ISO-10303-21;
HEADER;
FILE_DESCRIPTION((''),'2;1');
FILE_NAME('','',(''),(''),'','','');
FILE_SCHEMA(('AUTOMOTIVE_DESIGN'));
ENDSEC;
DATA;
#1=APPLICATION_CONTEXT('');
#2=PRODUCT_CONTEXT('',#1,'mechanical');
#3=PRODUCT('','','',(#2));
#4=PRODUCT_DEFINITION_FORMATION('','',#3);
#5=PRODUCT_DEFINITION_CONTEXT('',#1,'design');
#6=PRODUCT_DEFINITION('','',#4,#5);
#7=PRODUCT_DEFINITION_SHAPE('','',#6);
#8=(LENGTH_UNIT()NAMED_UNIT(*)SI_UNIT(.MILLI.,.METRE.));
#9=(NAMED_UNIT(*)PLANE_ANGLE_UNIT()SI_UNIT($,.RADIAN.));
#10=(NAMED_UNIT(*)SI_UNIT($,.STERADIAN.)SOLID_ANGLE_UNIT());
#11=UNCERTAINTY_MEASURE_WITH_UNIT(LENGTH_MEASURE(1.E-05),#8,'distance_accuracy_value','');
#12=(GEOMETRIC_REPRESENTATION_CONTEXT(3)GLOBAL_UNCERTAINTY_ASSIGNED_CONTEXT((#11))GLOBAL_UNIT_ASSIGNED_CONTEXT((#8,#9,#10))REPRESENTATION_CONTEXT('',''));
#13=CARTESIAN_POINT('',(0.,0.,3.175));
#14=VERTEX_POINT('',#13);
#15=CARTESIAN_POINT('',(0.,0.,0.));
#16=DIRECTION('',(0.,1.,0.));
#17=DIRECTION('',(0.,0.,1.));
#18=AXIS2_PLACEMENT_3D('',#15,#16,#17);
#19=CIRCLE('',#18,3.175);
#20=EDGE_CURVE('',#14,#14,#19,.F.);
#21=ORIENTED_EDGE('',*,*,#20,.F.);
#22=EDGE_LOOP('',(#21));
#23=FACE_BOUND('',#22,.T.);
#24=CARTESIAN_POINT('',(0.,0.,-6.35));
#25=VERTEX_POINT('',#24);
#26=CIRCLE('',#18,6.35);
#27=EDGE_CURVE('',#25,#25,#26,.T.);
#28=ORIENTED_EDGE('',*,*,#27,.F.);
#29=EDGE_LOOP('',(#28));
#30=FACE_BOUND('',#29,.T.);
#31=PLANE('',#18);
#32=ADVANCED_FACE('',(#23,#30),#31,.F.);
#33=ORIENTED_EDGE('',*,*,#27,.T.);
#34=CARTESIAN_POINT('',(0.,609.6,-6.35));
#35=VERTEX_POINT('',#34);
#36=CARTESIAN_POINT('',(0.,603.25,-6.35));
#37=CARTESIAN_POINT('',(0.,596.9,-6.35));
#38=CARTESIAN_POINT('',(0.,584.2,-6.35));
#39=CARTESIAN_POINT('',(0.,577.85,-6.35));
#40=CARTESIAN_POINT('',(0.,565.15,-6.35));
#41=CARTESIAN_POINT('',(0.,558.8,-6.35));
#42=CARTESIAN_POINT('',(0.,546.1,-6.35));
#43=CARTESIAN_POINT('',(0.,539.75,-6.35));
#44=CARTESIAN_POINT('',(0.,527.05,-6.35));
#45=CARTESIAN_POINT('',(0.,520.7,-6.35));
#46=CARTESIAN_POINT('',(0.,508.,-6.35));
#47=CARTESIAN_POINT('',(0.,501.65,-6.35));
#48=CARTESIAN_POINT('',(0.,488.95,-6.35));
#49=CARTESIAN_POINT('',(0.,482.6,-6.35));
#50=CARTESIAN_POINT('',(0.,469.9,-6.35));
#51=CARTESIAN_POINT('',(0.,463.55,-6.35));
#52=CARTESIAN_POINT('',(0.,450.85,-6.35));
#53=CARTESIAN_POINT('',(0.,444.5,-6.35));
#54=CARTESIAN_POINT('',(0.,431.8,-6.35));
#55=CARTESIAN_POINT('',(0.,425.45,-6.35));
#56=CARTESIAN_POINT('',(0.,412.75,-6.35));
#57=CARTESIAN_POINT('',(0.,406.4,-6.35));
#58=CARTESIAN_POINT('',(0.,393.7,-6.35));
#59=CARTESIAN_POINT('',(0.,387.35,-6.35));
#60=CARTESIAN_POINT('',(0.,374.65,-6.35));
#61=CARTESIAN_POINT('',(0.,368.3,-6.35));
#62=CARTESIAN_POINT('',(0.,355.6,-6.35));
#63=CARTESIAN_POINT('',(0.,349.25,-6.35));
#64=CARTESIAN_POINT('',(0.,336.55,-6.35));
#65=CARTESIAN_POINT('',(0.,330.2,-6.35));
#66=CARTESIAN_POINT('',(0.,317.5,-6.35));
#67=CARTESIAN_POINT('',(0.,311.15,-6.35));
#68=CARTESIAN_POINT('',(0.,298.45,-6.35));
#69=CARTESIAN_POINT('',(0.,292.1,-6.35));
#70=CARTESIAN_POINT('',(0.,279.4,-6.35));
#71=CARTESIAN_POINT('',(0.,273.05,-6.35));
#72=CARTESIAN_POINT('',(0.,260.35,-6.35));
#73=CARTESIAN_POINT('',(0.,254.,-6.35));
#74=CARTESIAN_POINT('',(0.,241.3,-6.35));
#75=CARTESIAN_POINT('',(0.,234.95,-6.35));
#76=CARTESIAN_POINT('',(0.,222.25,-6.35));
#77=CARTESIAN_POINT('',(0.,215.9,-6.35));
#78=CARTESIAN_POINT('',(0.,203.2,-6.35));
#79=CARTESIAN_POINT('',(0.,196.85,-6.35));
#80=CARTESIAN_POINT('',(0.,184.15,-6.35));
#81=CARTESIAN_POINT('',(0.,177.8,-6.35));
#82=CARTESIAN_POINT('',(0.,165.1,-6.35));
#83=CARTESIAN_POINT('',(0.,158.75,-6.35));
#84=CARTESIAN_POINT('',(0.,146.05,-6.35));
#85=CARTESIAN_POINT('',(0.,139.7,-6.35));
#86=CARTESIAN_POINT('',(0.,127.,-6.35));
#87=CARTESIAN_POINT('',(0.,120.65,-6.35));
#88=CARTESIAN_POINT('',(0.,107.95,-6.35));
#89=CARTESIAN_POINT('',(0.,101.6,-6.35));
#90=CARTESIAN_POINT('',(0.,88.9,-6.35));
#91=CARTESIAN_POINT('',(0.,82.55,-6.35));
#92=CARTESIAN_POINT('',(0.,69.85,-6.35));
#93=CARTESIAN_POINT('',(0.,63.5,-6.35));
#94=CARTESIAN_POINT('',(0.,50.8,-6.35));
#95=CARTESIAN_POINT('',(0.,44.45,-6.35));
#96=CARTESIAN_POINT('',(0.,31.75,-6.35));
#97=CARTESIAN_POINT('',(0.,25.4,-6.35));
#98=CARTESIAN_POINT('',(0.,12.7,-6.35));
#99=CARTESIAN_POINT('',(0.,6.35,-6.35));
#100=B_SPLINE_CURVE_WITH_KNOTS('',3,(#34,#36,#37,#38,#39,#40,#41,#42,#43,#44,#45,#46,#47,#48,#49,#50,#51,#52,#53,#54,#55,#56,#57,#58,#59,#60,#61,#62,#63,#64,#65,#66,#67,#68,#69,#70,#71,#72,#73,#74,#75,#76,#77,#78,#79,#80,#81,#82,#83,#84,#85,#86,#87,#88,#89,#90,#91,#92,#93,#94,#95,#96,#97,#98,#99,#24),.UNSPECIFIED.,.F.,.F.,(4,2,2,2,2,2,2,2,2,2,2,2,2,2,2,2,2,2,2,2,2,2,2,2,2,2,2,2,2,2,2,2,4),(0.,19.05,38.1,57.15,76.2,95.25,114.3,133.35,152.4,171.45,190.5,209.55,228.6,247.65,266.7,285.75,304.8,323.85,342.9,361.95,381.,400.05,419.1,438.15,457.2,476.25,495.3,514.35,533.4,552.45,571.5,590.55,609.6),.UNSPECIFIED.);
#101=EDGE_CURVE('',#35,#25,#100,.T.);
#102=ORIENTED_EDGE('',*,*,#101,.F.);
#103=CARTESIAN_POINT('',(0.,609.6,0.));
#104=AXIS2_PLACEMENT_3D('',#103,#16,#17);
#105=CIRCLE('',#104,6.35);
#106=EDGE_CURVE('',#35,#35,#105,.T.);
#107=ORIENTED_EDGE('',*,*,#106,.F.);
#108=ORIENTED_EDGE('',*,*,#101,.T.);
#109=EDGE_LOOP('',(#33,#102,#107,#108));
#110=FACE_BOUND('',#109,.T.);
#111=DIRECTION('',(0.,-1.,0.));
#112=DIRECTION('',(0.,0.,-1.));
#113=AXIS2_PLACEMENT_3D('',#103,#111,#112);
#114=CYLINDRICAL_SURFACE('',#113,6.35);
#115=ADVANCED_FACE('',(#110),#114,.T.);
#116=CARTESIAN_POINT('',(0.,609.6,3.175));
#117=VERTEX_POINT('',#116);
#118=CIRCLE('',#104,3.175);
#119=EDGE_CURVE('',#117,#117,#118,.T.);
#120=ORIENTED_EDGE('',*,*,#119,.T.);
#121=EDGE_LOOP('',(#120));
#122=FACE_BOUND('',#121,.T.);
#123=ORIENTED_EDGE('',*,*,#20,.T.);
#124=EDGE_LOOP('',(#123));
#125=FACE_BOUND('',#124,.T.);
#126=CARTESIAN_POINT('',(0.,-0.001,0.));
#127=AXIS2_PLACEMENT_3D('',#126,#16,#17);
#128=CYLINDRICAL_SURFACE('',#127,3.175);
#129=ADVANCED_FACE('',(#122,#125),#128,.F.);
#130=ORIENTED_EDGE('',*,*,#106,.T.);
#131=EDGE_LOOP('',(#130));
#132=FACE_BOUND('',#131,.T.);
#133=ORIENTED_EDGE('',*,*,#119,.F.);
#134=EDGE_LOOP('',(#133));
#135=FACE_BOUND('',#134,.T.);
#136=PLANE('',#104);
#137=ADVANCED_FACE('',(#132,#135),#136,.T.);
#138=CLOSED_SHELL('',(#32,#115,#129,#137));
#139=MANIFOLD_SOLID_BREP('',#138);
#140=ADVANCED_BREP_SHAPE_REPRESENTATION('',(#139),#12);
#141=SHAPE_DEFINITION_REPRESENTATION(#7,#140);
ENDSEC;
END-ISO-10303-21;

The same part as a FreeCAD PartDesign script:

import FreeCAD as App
import Part
import Sketcher
Q = App.Units.Quantity

doc = App.newDocument("Part")
params = doc.addObject("Spreadsheet::Sheet", "Params")
for row, (alias, value) in enumerate([
    ("sketch1_diameter", "0.5 in"),
    ("pad1_length", "24 in"),
    ("sketch2_diameter", "0.25 in"),
], start=1):
    params.set(f"A{row}", alias)
    params.set(f"B{row}", "=" + value)
    params.setAlias(f"B{row}", alias)

body = doc.addObject("PartDesign::Body", "Body")

# Sketch on XZ plane
sketch1 = body.newObject("Sketcher::SketchObject", "Sketch")
sketch1.AttachmentSupport = (doc.getObject("XZ_Plane"), [""])
sketch1.MapMode = "FlatFace"
sketch1.addGeometry(Part.Circle(App.Vector(0, 0, 0), App.Vector(0, 0, 1), 6), False)
sketch1.addConstraint([
    Sketcher.Constraint("Coincident", 0, 3, -1, 1),
    Sketcher.Constraint("Diameter", 0, Q("0.5 in")),
])
sketch1.setExpression("Constraints[1]", "Params.sketch1_diameter")
pad1 = body.newObject("PartDesign::Pad", "Pad")
pad1.Profile = sketch1
pad1.setExpression("Length", "Params.pad1_length")
pad1.Reversed = True

# Sketch on XZ plane
sketch2 = body.newObject("Sketcher::SketchObject", "Sketch001")
sketch2.AttachmentSupport = (doc.getObject("XZ_Plane"), [""])
sketch2.MapMode = "FlatFace"
sketch2.AttachmentOffset = App.Placement(App.Vector(0, 0, -24 * 25.4), App.Rotation())
sketch2.addGeometry(Part.Circle(App.Vector(0, 0, 0), App.Vector(0, 0, 1), 3.2), False)
sketch2.addConstraint([
    Sketcher.Constraint("Coincident", 0, 3, -1, 1),
    Sketcher.Constraint("Diameter", 0, Q("0.25 in")),
])
sketch2.setExpression("Constraints[1]", "Params.sketch2_diameter")
pocket1 = body.newObject("PartDesign::Pocket", "Pocket")
pocket1.Profile = sketch2
pocket1.Type = "UpToFirst"
pocket1.Reversed = True

doc.recompute()
